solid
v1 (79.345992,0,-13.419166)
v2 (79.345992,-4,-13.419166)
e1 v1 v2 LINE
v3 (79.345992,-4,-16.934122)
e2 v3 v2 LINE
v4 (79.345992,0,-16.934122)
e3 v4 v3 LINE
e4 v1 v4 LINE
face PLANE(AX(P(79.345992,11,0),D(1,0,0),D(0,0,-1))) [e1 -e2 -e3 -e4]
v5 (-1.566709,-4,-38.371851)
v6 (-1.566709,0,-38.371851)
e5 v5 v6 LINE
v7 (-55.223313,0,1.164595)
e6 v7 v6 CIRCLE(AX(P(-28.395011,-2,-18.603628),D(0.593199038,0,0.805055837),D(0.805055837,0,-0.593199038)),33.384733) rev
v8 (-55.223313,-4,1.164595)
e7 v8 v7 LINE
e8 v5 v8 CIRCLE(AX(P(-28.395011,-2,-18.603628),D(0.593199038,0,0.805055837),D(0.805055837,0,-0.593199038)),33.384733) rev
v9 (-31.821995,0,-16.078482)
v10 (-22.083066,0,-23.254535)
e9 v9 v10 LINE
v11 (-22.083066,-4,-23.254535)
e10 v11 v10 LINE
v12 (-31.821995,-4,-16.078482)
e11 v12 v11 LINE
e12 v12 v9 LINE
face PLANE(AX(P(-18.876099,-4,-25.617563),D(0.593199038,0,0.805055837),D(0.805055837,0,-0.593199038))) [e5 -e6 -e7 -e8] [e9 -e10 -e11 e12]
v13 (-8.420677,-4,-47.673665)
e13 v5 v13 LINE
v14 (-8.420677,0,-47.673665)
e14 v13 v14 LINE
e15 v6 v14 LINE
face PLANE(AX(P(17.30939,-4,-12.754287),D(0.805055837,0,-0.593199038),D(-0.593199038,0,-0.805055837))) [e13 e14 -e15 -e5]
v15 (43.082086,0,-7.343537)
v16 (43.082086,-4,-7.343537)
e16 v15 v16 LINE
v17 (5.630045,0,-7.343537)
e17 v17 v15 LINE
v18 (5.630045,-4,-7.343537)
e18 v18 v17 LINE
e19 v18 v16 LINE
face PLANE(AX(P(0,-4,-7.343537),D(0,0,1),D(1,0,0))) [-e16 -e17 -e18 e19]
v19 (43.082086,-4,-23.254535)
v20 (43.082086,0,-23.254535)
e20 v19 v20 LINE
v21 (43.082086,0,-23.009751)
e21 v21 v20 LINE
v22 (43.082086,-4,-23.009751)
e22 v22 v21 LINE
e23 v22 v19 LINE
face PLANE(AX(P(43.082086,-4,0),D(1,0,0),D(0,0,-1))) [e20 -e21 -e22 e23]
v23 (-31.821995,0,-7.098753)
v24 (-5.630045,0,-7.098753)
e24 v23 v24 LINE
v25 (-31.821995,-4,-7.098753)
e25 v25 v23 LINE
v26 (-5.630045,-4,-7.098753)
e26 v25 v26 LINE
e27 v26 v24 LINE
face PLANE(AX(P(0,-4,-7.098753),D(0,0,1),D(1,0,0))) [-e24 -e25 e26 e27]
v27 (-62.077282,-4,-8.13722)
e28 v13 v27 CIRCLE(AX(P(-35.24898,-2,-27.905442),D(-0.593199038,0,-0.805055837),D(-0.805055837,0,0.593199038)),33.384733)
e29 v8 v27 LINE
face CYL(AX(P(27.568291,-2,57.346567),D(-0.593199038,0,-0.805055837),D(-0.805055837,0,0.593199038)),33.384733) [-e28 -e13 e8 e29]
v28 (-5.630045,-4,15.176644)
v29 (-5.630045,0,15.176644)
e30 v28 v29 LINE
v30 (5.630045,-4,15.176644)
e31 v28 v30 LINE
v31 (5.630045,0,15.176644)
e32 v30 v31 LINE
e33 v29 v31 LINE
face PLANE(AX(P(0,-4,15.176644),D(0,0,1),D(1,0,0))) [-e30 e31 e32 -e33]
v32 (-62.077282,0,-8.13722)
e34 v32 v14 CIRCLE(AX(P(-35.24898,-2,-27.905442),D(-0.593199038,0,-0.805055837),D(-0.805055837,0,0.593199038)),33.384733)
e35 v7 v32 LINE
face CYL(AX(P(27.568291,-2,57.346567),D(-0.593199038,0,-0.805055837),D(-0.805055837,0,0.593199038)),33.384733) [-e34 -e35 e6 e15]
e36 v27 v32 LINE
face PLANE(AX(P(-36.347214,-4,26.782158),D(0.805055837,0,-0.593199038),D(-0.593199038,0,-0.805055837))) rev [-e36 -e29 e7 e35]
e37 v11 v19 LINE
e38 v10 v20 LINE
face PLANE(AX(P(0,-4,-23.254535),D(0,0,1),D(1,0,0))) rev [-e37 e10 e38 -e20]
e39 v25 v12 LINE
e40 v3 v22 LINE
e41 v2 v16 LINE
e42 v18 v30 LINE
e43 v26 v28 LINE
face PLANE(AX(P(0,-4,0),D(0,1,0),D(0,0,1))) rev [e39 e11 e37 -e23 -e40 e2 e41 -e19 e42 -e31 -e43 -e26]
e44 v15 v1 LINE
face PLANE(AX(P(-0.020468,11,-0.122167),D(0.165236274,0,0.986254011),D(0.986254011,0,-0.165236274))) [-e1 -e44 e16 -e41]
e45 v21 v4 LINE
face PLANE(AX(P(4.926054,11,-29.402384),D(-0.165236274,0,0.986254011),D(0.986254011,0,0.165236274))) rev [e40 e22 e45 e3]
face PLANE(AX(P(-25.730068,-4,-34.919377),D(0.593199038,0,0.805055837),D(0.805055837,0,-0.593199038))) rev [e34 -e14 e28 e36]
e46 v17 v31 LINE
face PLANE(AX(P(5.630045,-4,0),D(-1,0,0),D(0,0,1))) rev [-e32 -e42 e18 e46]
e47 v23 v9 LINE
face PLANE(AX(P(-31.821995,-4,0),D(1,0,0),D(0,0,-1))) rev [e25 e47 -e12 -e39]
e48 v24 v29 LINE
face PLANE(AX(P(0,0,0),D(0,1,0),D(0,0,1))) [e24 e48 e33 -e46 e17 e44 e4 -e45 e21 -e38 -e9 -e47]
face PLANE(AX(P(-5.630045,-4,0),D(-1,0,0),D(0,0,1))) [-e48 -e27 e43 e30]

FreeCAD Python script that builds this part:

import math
import FreeCAD as App
import Part
import Sketcher

V = App.Vector

doc = App.newDocument("Part")
params = doc.addObject("Spreadsheet::Sheet", "Params")
for row, (alias, value) in enumerate([
    ("pad1_length", "4 mm"),
    ("sketch2_height", "4 mm"),
    ("pad2_length", "11.554247 mm"),
    ("pocket1_length", "15 mm"),
], start=1):
    params.set(f"A{row}", alias)
    params.set(f"B{row}", "=" + value)
    params.setAlias(f"B{row}", alias)

body = doc.addObject("PartDesign::Body", "Body")

# Sketch on XZ plane
sketch1 = doc.addObject("Sketcher::SketchObject", "Sketch")
body.addObject(sketch1)
sketch1.AttachmentSupport = (doc.XZ_Plane, [""])
sketch1.MapMode = "FlatFace"
sketch1.addGeometry([
    Part.LineSegment(V(-62.08, -8.14, 0), V(-55.22, 1.16, 0)),  # 0
    Part.LineSegment(V(-55.22, 1.16, 0), V(-31.82, -16.08, 0)),  # 1
    Part.LineSegment(V(-31.82, -16.08, 0), V(-31.82, -7.1, 0)),  # 2
    Part.LineSegment(V(-31.82, -7.1, 0), V(-5.63, -7.1, 0)),  # 3
    Part.LineSegment(V(-5.63, -7.1, 0), V(-5.63, 15.18, 0)),  # 4
    Part.LineSegment(V(-5.63, 15.18, 0), V(5.63, 15.18, 0)),  # 5
    Part.LineSegment(V(5.63, 15.18, 0), V(5.63, -7.34, 0)),  # 6
    Part.LineSegment(V(5.63, -7.34, 0), V(89.84, -7.34, 0)),  # 7
    Part.LineSegment(V(89.84, -7.34, 0), V(89.84, -23.01, 0)),  # 8
    Part.LineSegment(V(89.84, -23.01, 0), V(43.08, -23.01, 0)),  # 9
    Part.LineSegment(V(43.08, -23.01, 0), V(43.08, -23.25, 0)),  # 10
    Part.LineSegment(V(43.08, -23.25, 0), V(-22.08, -23.25, 0)),  # 11
    Part.LineSegment(V(-22.08, -23.25, 0), V(-1.57, -38.37, 0)),  # 12
    Part.LineSegment(V(-1.57, -38.37, 0), V(-8.42, -47.67, 0)),  # 13
    Part.LineSegment(V(-8.42, -47.67, 0), V(-62.08, -8.14, 0)),  # 14
], False)
sketch1.addConstraint([
    Sketcher.Constraint("Coincident", 0, 2, 1, 1),
    Sketcher.Constraint("Coincident", 1, 2, 2, 1),
    Sketcher.Constraint("Coincident", 2, 2, 3, 1),
    Sketcher.Constraint("Coincident", 3, 2, 4, 1),
    Sketcher.Constraint("Coincident", 4, 2, 5, 1),
    Sketcher.Constraint("Coincident", 5, 2, 6, 1),
    Sketcher.Constraint("Coincident", 6, 2, 7, 1),
    Sketcher.Constraint("Coincident", 7, 2, 8, 1),
    Sketcher.Constraint("Coincident", 8, 2, 9, 1),
    Sketcher.Constraint("Coincident", 9, 2, 10, 1),
    Sketcher.Constraint("Coincident", 10, 2, 11, 1),
    Sketcher.Constraint("Coincident", 11, 2, 12, 1),
    Sketcher.Constraint("Coincident", 12, 2, 13, 1),
    Sketcher.Constraint("Coincident", 13, 2, 14, 1),
    Sketcher.Constraint("Coincident", 14, 2, 0, 1),
    Sketcher.Constraint("Vertical", 2),
    Sketcher.Constraint("Horizontal", 3),
    Sketcher.Constraint("Vertical", 4),
    Sketcher.Constraint("Horizontal", 5),
    Sketcher.Constraint("Vertical", 6),
    Sketcher.Constraint("Horizontal", 7),
    Sketcher.Constraint("Vertical", 8),
    Sketcher.Constraint("Horizontal", 9),
    Sketcher.Constraint("Vertical", 10),
    Sketcher.Constraint("Horizontal", 11),
    Sketcher.Constraint("Perpendicular", 0, 1),
    Sketcher.Constraint("Parallel", 1, 12),
    Sketcher.Constraint("Perpendicular", 12, 13),
    Sketcher.Constraint("Perpendicular", 13, 14),
    Sketcher.Constraint("Equal", 0, 13),
    Sketcher.Constraint("DistanceX", 3, 1, 3, 2, 26.19195),
    Sketcher.Constraint("DistanceX", 5, 1, 5, 2, 11.260091),
    Sketcher.Constraint("DistanceY", 2, 1, 2, 2, 8.979729),
    Sketcher.Constraint("DistanceY", 6, 2, 6, 1, 22.520181),
    Sketcher.Constraint("Distance", 12, 25.48439),
    Sketcher.Constraint("DistanceX", 7, 1, 7, 2, 84.205896),
    Sketcher.Constraint("DistanceX", 9, 2, 9, 1, 46.753855),
    Sketcher.Constraint("DistanceX", 11, 2, 11, 1, 65.165152),
    Sketcher.Constraint("DistanceY", 4, 1, 4, 2, 22.275397),
    Sketcher.Constraint("DistanceY", 8, 2, 8, 1, 15.666213),
    Sketcher.Constraint("DistanceY", 10, 2, 10, 1, 0.244785),
    Sketcher.Constraint("DistanceY", 1, 2, -1, 1, 16.078482),
    Sketcher.Constraint("DistanceX", -1, 1, 7, 2, 89.835941),
    Sketcher.Constraint("DistanceX", 14, 2, -1, 1, 62.077282),
    Sketcher.Constraint("DistanceY", 14, 2, -1, 1, 8.13722),
])
pad1 = doc.addObject("PartDesign::Pad", "Pad")
body.addObject(pad1)
pad1.Profile = sketch1
pad1.setExpression("Length", "Params.pad1_length")

# Sketch on an angled plane
sketch2 = doc.addObject("Sketcher::SketchObject", "Sketch001")
body.addObject(sketch2)
sketch2.Placement = App.Placement(V(-25.730068, 0, -34.919377), App.Rotation(V(-0.805055837, 0, 0.593199038), V(0, 0.999999999, 0), V(-0.593199038, 0, -0.805055837), "ZXY"))
sketch2.addGeometry([
    Part.ArcOfCircle(Part.Circle(V(11.8, -2, 0), V(0, 0, 1), 33.4), math.radians(3), math.radians(177)),
    Part.LineSegment(V(-21.5, 0, 0), V(-21.5, -4, 0)),
    Part.ArcOfCircle(Part.Circle(V(11.8, -2, 0), V(0, 0, 1), 33.4), math.radians(-177), math.radians(-3)),
    Part.LineSegment(V(45.1, -4, 0), V(45.1, 0, 0)),
], False)
sketch2.addConstraint([
    Sketcher.Constraint("Coincident", 0, 2, 1, 1),
    Sketcher.Constraint("Coincident", 1, 2, 2, 1),
    Sketcher.Constraint("Coincident", 2, 2, 3, 1),
    Sketcher.Constraint("Coincident", 3, 2, 0, 1),
    Sketcher.Constraint("Vertical", 1),
    Sketcher.Constraint("Vertical", 3),
    Sketcher.Constraint("Coincident", 2, 3, 0, 3),
    Sketcher.Constraint("Equal", 0, 2),
    Sketcher.Constraint("PointOnObject", 0, 2, -1),
    Sketcher.Constraint("PointOnObject", 3, 2, -1),
    Sketcher.Constraint("DistanceY", 1, 2, 1, 1, 4.0),
    Sketcher.Constraint("Radius", 0, 33.384733),
    Sketcher.Constraint("DistanceX", -1, 1, 0, 3, 11.823915),
])
sketch2.setExpression("Constraints[10]", "Params.sketch2_height")
pad2 = doc.addObject("PartDesign::Pad", "Pad001")
body.addObject(pad2)
pad2.Profile = sketch2
pad2.setExpression("Length", "Params.pad2_length")
pad2.Reversed = True

# Sketch on XZ plane
sketch3 = doc.addObject("Sketcher::SketchObject", "Sketch002")
body.addObject(sketch3)
sketch3.AttachmentSupport = (doc.XZ_Plane, [""])
sketch3.MapMode = "FlatFace"
sketch3.AttachmentOffset = App.Placement(V(0, 0, 4), App.Rotation())
sketch3.addGeometry([
    Part.LineSegment(V(79.3, -13.4, 0), V(79.3, -16.9, 0)),  # 0
    Part.LineSegment(V(79.3, -16.9, 0), V(43.1, -23, 0)),  # 1
    Part.LineSegment(V(43.1, -23, 0), V(89.8, -23, 0)),  # 2
    Part.LineSegment(V(89.8, -23, 0), V(89.8, -7.3, 0)),  # 3
    Part.LineSegment(V(89.8, -7.3, 0), V(43.1, -7.3, 0)),  # 4
    Part.LineSegment(V(43.1, -7.3, 0), V(79.3, -13.4, 0)),  # 5
], False)
sketch3.addConstraint([
    Sketcher.Constraint("Coincident", 0, 2, 1, 1),
    Sketcher.Constraint("Coincident", 1, 2, 2, 1),
    Sketcher.Constraint("Coincident", 2, 2, 3, 1),
    Sketcher.Constraint("Coincident", 3, 2, 4, 1),
    Sketcher.Constraint("Coincident", 4, 2, 5, 1),
    Sketcher.Constraint("Coincident", 5, 2, 0, 1),
    Sketcher.Constraint("Vertical", 0),
    Sketcher.Constraint("Horizontal", 2),
    Sketcher.Constraint("Vertical", 3),
    Sketcher.Constraint("Horizontal", 4),
    Sketcher.Constraint("Vertical", 1, 2, 4, 2),
    Sketcher.Constraint("Equal", 1, 5),
    Sketcher.Constraint("DistanceX", 2, 1, 2, 2, 46.753855),
    Sketcher.Constraint("DistanceY", 0, 2, 0, 1, 3.514957),
    Sketcher.Constraint("DistanceY", 3, 1, 3, 2, 15.666213),
    Sketcher.Constraint("DistanceX", -1, 1, 0, 2, 79.345992),
    Sketcher.Constraint("DistanceY", 1, 2, -1, 1, 23.009751),
    Sketcher.Constraint("DistanceX", -1, 1, 2, 2, 89.835941),
])
pocket1 = doc.addObject("PartDesign::Pocket", "Pocket")
body.addObject(pocket1)
pocket1.Profile = sketch3
pocket1.setExpression("Length", "Params.pocket1_length")

doc.recompute()
